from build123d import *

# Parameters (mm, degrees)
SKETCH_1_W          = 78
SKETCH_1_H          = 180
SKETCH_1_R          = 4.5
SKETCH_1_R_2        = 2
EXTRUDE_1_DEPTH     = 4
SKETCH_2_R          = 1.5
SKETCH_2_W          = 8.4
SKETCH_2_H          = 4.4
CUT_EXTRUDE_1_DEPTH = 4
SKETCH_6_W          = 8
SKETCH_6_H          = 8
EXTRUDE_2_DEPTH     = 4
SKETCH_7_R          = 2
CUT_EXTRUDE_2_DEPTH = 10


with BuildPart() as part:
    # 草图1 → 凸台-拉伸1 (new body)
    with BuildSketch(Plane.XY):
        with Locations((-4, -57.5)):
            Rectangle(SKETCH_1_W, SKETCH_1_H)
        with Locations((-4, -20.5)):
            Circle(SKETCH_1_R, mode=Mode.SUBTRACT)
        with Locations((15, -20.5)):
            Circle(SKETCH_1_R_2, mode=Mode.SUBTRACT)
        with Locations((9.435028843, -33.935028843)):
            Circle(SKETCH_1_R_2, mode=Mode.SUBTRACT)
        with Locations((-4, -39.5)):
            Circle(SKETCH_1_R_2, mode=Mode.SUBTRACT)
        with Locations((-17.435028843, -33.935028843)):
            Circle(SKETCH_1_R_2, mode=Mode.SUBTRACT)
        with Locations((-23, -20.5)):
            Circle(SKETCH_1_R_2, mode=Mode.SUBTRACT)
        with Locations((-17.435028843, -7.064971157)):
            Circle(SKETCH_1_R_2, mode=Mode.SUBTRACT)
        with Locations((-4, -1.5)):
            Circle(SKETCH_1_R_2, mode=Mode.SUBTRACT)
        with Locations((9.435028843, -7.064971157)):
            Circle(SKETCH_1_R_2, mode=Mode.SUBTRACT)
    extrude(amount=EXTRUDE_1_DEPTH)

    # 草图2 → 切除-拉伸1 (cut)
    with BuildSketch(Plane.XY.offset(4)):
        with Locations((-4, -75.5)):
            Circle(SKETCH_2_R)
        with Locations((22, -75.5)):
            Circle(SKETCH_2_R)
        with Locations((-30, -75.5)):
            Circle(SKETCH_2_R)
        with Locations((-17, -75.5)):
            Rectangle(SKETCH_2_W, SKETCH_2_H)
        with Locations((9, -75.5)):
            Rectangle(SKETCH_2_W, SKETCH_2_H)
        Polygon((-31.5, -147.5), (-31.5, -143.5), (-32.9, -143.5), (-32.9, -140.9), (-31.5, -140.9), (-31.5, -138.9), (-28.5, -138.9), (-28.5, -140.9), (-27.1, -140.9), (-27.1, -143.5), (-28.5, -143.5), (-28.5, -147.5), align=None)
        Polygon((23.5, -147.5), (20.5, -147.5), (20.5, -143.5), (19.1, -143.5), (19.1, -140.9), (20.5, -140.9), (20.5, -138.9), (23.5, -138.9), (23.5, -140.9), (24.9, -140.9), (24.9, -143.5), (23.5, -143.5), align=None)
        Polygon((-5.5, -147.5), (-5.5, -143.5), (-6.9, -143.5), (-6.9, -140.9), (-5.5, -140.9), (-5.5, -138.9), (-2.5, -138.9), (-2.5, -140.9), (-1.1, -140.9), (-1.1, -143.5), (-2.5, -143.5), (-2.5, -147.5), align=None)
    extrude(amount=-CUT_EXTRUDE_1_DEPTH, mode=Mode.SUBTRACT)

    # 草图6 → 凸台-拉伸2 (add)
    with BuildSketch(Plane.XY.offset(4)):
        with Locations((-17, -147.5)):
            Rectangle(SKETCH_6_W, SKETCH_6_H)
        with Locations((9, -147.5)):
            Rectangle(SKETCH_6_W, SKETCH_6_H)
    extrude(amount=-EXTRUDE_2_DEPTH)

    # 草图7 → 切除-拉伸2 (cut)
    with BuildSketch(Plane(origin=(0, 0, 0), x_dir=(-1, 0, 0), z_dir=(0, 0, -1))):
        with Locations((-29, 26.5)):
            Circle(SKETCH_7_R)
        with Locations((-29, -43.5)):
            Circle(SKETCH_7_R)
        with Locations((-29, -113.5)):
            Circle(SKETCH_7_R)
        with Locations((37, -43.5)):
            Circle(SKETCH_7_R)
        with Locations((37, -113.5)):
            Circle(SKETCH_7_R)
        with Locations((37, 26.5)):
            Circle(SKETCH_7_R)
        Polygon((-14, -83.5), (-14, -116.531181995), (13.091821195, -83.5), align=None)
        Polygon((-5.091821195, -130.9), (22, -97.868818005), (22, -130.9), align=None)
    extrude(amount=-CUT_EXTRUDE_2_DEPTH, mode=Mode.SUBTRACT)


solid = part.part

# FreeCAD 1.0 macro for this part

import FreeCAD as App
import Part
import Sketcher
from FreeCAD import Vector


def add_polygon(sketch, points):
    """Adds a closed chain of lines whose ends are joined by coincident constraints."""
    first, n = sketch.GeometryCount, len(points)
    for a, b in zip(points, points[1:] + points[:1]):
        sketch.addGeometry(Part.LineSegment(App.Vector(*a, 0), App.Vector(*b, 0)), False)
    for i in range(n):
        sketch.addConstraint(Sketcher.Constraint("Coincident", first + i, 2, first + (i + 1) % n, 1))

doc = App.newDocument("Part")
body = doc.addObject("PartDesign::Body", "Body")

# Sketch on XY plane
sketch1 = body.newObject("Sketcher::SketchObject", "Sketch")
sketch1.AttachmentSupport = (doc.getObject("XY_Plane"), [""])
sketch1.MapMode = "FlatFace"
add_polygon(sketch1, [(-43, 32.5), (-43, -147.5), (35, -147.5), (35, 32.5)])  # lines 0-3
sketch1.addGeometry(Part.Circle(Vector(-17.4, -33.9, 0), Vector(0, 0, 1), 2), False)  # 4
sketch1.addGeometry(Part.Circle(Vector(-4, -39.5, 0), Vector(0, 0, 1), 2), False)  # 5
sketch1.addGeometry(Part.Circle(Vector(9.4, -33.9, 0), Vector(0, 0, 1), 2), False)  # 6
sketch1.addGeometry(Part.Circle(Vector(-23, -20.5, 0), Vector(0, 0, 1), 2), False)  # 7
sketch1.addGeometry(Part.Circle(Vector(-17.4, -7.1, 0), Vector(0, 0, 1), 2), False)  # 8
sketch1.addGeometry(Part.Circle(Vector(-4, -20.5, 0), Vector(0, 0, 1), 4.5), False)  # 9
sketch1.addGeometry(Part.Circle(Vector(15, -20.5, 0), Vector(0, 0, 1), 2), False)  # 10
sketch1.addGeometry(Part.Circle(Vector(-4, -1.5, 0), Vector(0, 0, 1), 2), False)  # 11
sketch1.addGeometry(Part.Circle(Vector(9.4, -7.1, 0), Vector(0, 0, 1), 2), False)  # 12
sketch1.addConstraint([
    Sketcher.Constraint("Vertical", 0),
    Sketcher.Constraint("Horizontal", 1),
    Sketcher.Constraint("Vertical", 2),
    Sketcher.Constraint("Horizontal", 3),
    Sketcher.Constraint("Equal", 4, 5),
    Sketcher.Constraint("Equal", 5, 6),
    Sketcher.Constraint("Equal", 6, 7),
    Sketcher.Constraint("Equal", 7, 8),
    Sketcher.Constraint("Equal", 8, 10),
    Sketcher.Constraint("Equal", 10, 11),
    Sketcher.Constraint("Equal", 11, 12),
    Sketcher.Constraint("Horizontal", 4, 3, 6, 3),
    Sketcher.Constraint("Horizontal", 7, 3, 9, 3),
    Sketcher.Constraint("Horizontal", 9, 3, 10, 3),
    Sketcher.Constraint("Horizontal", 8, 3, 12, 3),
    Sketcher.Constraint("Vertical", 4, 3, 8, 3),
    Sketcher.Constraint("Vertical", 5, 3, 9, 3),
    Sketcher.Constraint("Vertical", 9, 3, 11, 3),
    Sketcher.Constraint("Vertical", 6, 3, 12, 3),
    Sketcher.Constraint("Diameter", 4, 4.0),
    Sketcher.Constraint("Diameter", 9, 9.0),
    Sketcher.Constraint("DistanceX", 1, 1, 1, 2, 78.0),
    Sketcher.Constraint("DistanceY", 0, 2, 0, 1, 180.0),
    Sketcher.Constraint("DistanceX", 5, 3, -1, 1, 4.0),
    Sketcher.Constraint("DistanceX", 7, 3, -1, 1, 23.0),
    Sketcher.Constraint("DistanceX", -1, 1, 10, 3, 15.0),
    Sketcher.Constraint("DistanceX", 0, 2, -1, 1, 43.0),
    Sketcher.Constraint("DistanceY", 5, 3, 7, 3, 19.0),
    Sketcher.Constraint("DistanceY", 9, 3, 11, 3, 19.0),
    Sketcher.Constraint("DistanceY", 0, 2, 5, 3, 108.0),
    Sketcher.Constraint("DistanceY", 5, 3, -1, 1, 39.5),
    Sketcher.Constraint("DistanceX", 4, 3, -1, 1, 17.435029),
    Sketcher.Constraint("DistanceY", 4, 3, -1, 1, 33.935029),
    Sketcher.Constraint("DistanceX", -1, 1, 6, 3, 9.435029),
    Sketcher.Constraint("DistanceY", 8, 3, -1, 1, 7.064971),
])
pad1 = body.newObject("PartDesign::Pad", "Pad")
pad1.Profile = sketch1
pad1.Length = 4

# Sketch on XY plane
sketch2 = body.newObject("Sketcher::SketchObject", "Sketch001")
sketch2.AttachmentSupport = (doc.getObject("XY_Plane"), [""])
sketch2.MapMode = "FlatFace"
sketch2.AttachmentOffset = App.Placement(Vector(0, 0, 4), App.Rotation())
sketch2.addGeometry(Part.Circle(Vector(-4, -75.5, 0), Vector(0, 0, 1), 1.5), False)  # 0
sketch2.addGeometry(Part.Circle(Vector(22, -75.5, 0), Vector(0, 0, 1), 1.5), False)  # 1
sketch2.addGeometry(Part.Circle(Vector(-30, -75.5, 0), Vector(0, 0, 1), 1.5), False)  # 2
add_polygon(sketch2, [(-21.2, -73.3), (-21.2, -77.7), (-12.8, -77.7), (-12.8, -73.3)])  # lines 3-6
add_polygon(sketch2, [(4.8, -73.3), (4.8, -77.7), (13.2, -77.7), (13.2, -73.3)])  # lines 7-10
add_polygon(sketch2, [(-31.5, -143.5), (-31.5, -147.5), (-28.5, -147.5), (-28.5, -143.5), (-27.1, -143.5), (-27.1, -140.9), (-28.5, -140.9), (-28.5, -138.9), (-31.5, -138.9), (-31.5, -140.9), (-32.9, -140.9), (-32.9, -143.5)])  # lines 11-22
add_polygon(sketch2, [(20.5, -147.5), (23.5, -147.5), (23.5, -143.5), (24.9, -143.5), (24.9, -140.9), (23.5, -140.9), (23.5, -138.9), (20.5, -138.9), (20.5, -140.9), (19.1, -140.9), (19.1, -143.5), (20.5, -143.5)])  # lines 23-34
add_polygon(sketch2, [(-5.5, -143.5), (-5.5, -147.5), (-2.5, -147.5), (-2.5, -143.5), (-1.1, -143.5), (-1.1, -140.9), (-2.5, -140.9), (-2.5, -138.9), (-5.5, -138.9), (-5.5, -140.9), (-6.9, -140.9), (-6.9, -143.5)])  # lines 35-46
sketch2.addConstraint([
    Sketcher.Constraint("Vertical", 3),
    Sketcher.Constraint("Horizontal", 4),
    Sketcher.Constraint("Vertical", 5),
    Sketcher.Constraint("Horizontal", 6),
    Sketcher.Constraint("Vertical", 7),
    Sketcher.Constraint("Horizontal", 8),
    Sketcher.Constraint("Vertical", 9),
    Sketcher.Constraint("Horizontal", 10),
    Sketcher.Constraint("Vertical", 11),
    Sketcher.Constraint("Horizontal", 12),
    Sketcher.Constraint("Vertical", 13),
    Sketcher.Constraint("Horizontal", 14),
    Sketcher.Constraint("Vertical", 15),
    Sketcher.Constraint("Horizontal", 16),
    Sketcher.Constraint("Vertical", 17),
    Sketcher.Constraint("Horizontal", 18),
    Sketcher.Constraint("Vertical", 19),
    Sketcher.Constraint("Horizontal", 20),
    Sketcher.Constraint("Vertical", 21),
    Sketcher.Constraint("Horizontal", 22),
    Sketcher.Constraint("Horizontal", 23),
    Sketcher.Constraint("Vertical", 24),
    Sketcher.Constraint("Horizontal", 25),
    Sketcher.Constraint("Vertical", 26),
    Sketcher.Constraint("Horizontal", 27),
    Sketcher.Constraint("Vertical", 28),
    Sketcher.Constraint("Horizontal", 29),
    Sketcher.Constraint("Vertical", 30),
    Sketcher.Constraint("Horizontal", 31),
    Sketcher.Constraint("Vertical", 32),
    Sketcher.Constraint("Horizontal", 33),
    Sketcher.Constraint("Vertical", 34),
    Sketcher.Constraint("Vertical", 35),
    Sketcher.Constraint("Horizontal", 36),
    Sketcher.Constraint("Vertical", 37),
    Sketcher.Constraint("Horizontal", 38),
    Sketcher.Constraint("Vertical", 39),
    Sketcher.Constraint("Horizontal", 40),
    Sketcher.Constraint("Vertical", 41),
    Sketcher.Constraint("Horizontal", 42),
    Sketcher.Constraint("Vertical", 43),
    Sketcher.Constraint("Horizontal", 44),
    Sketcher.Constraint("Vertical", 45),
    Sketcher.Constraint("Horizontal", 46),
    Sketcher.Constraint("Equal", 0, 1),
    Sketcher.Constraint("Equal", 1, 2),
    Sketcher.Constraint("Horizontal", 0, 3, 1, 3),
    Sketcher.Constraint("Horizontal", 1, 3, 2, 3),
    Sketcher.Constraint("Horizontal", 4, 2, 7, 2),
    Sketcher.Constraint("Horizontal", 6, 2, 9, 2),
    Sketcher.Constraint("Horizontal", 16, 2, 19, 2),
    Sketcher.Constraint("Horizontal", 14, 2, 21, 2),
    Sketcher.Constraint("Horizontal", 12, 2, 23, 2),
    Sketcher.Constraint("Horizontal", 22, 2, 24, 2),
    Sketcher.Constraint("Horizontal", 20, 2, 26, 2),
    Sketcher.Constraint("Horizontal", 18, 2, 28, 2),
    Sketcher.Constraint("Horizontal", 27, 2, 30, 2),
    Sketcher.Constraint("Horizontal", 25, 2, 32, 2),
    Sketcher.Constraint("Horizontal", 34, 2, 35, 2),
    Sketcher.Constraint("Horizontal", 33, 2, 37, 2),
    Sketcher.Constraint("Horizontal", 31, 2, 39, 2),
    Sketcher.Constraint("Horizontal", 29, 2, 41, 2),
    Sketcher.Constraint("Horizontal", 40, 2, 43, 2),
    Sketcher.Constraint("Horizontal", 38, 2, 45, 2),
    Sketcher.Constraint("Vertical", 13, 2, 16, 2),
    Sketcher.Constraint("Vertical", 11, 2, 18, 2),
    Sketcher.Constraint("Vertical", 24, 2, 27, 2),
    Sketcher.Constraint("Vertical", 30, 2, 33, 2),
    Sketcher.Constraint("Vertical", 37, 2, 40, 2),
    Sketcher.Constraint("Vertical", 35, 2, 42, 2),
    Sketcher.Constraint("Equal", 6, 8),
    Sketcher.Constraint("Equal", 16, 20),
    Sketcher.Constraint("Equal", 18, 23),
    Sketcher.Constraint("Equal", 22, 25),
    Sketcher.Constraint("Equal", 27, 31),
    Sketcher.Constraint("Equal", 29, 36),
    Sketcher.Constraint("Equal", 33, 38),
    Sketcher.Constraint("Equal", 40, 44),
    Sketcher.Constraint("Diameter", 0, 3.0),
    Sketcher.Constraint("DistanceX", 12, 1, 12, 2, 3.0),
    Sketcher.Constraint("DistanceY", 11, 2, 11, 1, 4.0),
    Sketcher.Constraint("DistanceY", 17, 1, 17, 2, 2.0),
    Sketcher.Constraint("DistanceX", 4, 1, 4, 2, 8.4),
    Sketcher.Constraint("DistanceX", 14, 1, 14, 2, 1.4),
    Sketcher.Constraint("DistanceY", 3, 2, 3, 1, 4.4),
    Sketcher.Constraint("DistanceY", 15, 1, 15, 2, 2.6),
    Sketcher.Constraint("DistanceX", 0, 3, -1, 1, 4.0),
    Sketcher.Constraint("DistanceX", -1, 1, 1, 3, 22.0),
    Sketcher.Constraint("DistanceX", 2, 3, -1, 1, 30.0),
    Sketcher.Constraint("DistanceX", 3, 2, 7, 2, 26.0),
    Sketcher.Constraint("DistanceY", 11, 2, 2, 3, 72.0),
    Sketcher.Constraint("DistanceX", 12, 2, 23, 2, 52.0),
    Sketcher.Constraint("DistanceX", 12, 2, 35, 2, 23.0),
    Sketcher.Constraint("DistanceY", 0, 3, -1, 1, 75.5),
    Sketcher.Constraint("DistanceX", 3, 2, -1, 1, 21.2),
    Sketcher.Constraint("DistanceY", 3, 2, -1, 1, 77.7),
    Sketcher.Constraint("DistanceX", 11, 2, -1, 1, 31.5),
])
pocket1 = body.newObject("PartDesign::Pocket", "Pocket")
pocket1.Profile = sketch2
pocket1.Length = 4

# Sketch on XY plane
sketch3 = body.newObject("Sketcher::SketchObject", "Sketch002")
sketch3.AttachmentSupport = (doc.getObject("XY_Plane"), [""])
sketch3.MapMode = "FlatFace"
sketch3.AttachmentOffset = App.Placement(Vector(0, 0, 4), App.Rotation())
add_polygon(sketch3, [(-21, -144), (-21, -152), (-13, -152), (-13, -144)])  # lines 0-3
add_polygon(sketch3, [(5, -144), (5, -152), (13, -152), (13, -144)])  # lines 4-7
sketch3.addConstraint([
    Sketcher.Constraint("Vertical", 0),
    Sketcher.Constraint("Horizontal", 1),
    Sketcher.Constraint("Vertical", 2),
    Sketcher.Constraint("Horizontal", 3),
    Sketcher.Constraint("Vertical", 4),
    Sketcher.Constraint("Horizontal", 5),
    Sketcher.Constraint("Vertical", 6),
    Sketcher.Constraint("Horizontal", 7),
    Sketcher.Constraint("Symmetric", 1, 2, 5, 2, -2),
    Sketcher.Constraint("Horizontal", 3, 2, 6, 2),
    Sketcher.Constraint("Equal", 3, 5),
    Sketcher.Constraint("Equal", 7, 0),
    Sketcher.Constraint("DistanceX", 1, 1, 1, 2, 8.0),
    Sketcher.Constraint("DistanceX", 0, 2, -1, 1, 21.0),
    Sketcher.Constraint("DistanceY", 0, 2, -1, 1, 151.5),
])
pad2 = body.newObject("PartDesign::Pad", "Pad001")
pad2.Profile = sketch3
pad2.Length = 4
pad2.Reversed = True

# Sketch on XY plane
sketch4 = body.newObject("Sketcher::SketchObject", "Sketch003")
sketch4.AttachmentSupport = (doc.getObject("XY_Plane"), [""])
sketch4.MapMode = "FlatFace"
sketch4.addGeometry(Part.Circle(Vector(29, 26.5, 0), Vector(0, 0, 1), 2), False)  # 0
sketch4.addGeometry(Part.Circle(Vector(29, -43.5, 0), Vector(0, 0, 1), 2), False)  # 1
sketch4.addGeometry(Part.Circle(Vector(29, -113.5, 0), Vector(0, 0, 1), 2), False)  # 2
sketch4.addGeometry(Part.Circle(Vector(-37, -43.5, 0), Vector(0, 0, 1), 2), False)  # 3
sketch4.addGeometry(Part.Circle(Vector(-37, -113.5, 0), Vector(0, 0, 1), 2), False)  # 4
sketch4.addGeometry(Part.Circle(Vector(-37, 26.5, 0), Vector(0, 0, 1), 2), False)  # 5
add_polygon(sketch4, [(14, -83.5), (14, -116.5), (-13.1, -83.5)])  # lines 6-8
add_polygon(sketch4, [(-22, -97.9), (5.1, -130.9), (-22, -130.9)])  # lines 9-11
sketch4.addConstraint([
    Sketcher.Constraint("Vertical", 6),
    Sketcher.Constraint("Horizontal", 8),
    Sketcher.Constraint("Horizontal", 10),
    Sketcher.Constraint("Vertical", 11),
    Sketcher.Constraint("Equal", 0, 1),
    Sketcher.Constraint("Equal", 1, 2),
    Sketcher.Constraint("Equal", 2, 3),
    Sketcher.Constraint("Equal", 3, 4),
    Sketcher.Constraint("Equal", 4, 5),
    Sketcher.Constraint("Parallel", 7, 9),
    Sketcher.Constraint("Horizontal", 1, 3, 3, 3),
    Sketcher.Constraint("Horizontal", 2, 3, 4, 3),
    Sketcher.Constraint("Horizontal", 0, 3, 5, 3),
    Sketcher.Constraint("Vertical", 0, 3, 1, 3),
    Sketcher.Constraint("Vertical", 1, 3, 2, 3),
    Sketcher.Constraint("Vertical", 3, 3, 4, 3),
    Sketcher.Constraint("Vertical", 4, 3, 5, 3),
    Sketcher.Constraint("Equal", 8, 10),
    Sketcher.Constraint("Diameter", 0, 4.0),
    Sketcher.Constraint("DistanceX", -1, 1, 0, 3, 29.0),
    Sketcher.Constraint("DistanceX", 3, 3, -1, 1, 37.0),
    Sketcher.Constraint("DistanceX", -1, 1, 6, 2, 14.0),
    Sketcher.Constraint("DistanceX", 10, 2, -1, 1, 22.0),
    Sketcher.Constraint("DistanceY", 1, 3, 0, 3, 70.0),
    Sketcher.Constraint("DistanceY", 2, 3, 1, 3, 70.0),
    Sketcher.Constraint("DistanceY", 4, 3, 7, 2, 30.0),
    Sketcher.Constraint("DistanceY", -1, 1, 0, 3, 26.5),
    Sketcher.Constraint("DistanceY", 9, 2, -1, 1, 130.9),
    Sketcher.Constraint("DistanceX", 8, 1, 8, 2, 27.091821),
    Sketcher.Constraint("DistanceY", 6, 2, 6, 1, 33.031182),
])
pocket2 = body.newObject("PartDesign::Pocket", "Pocket001")
pocket2.Profile = sketch4
pocket2.Length = 10
pocket2.Reversed = True

doc.recompute()
